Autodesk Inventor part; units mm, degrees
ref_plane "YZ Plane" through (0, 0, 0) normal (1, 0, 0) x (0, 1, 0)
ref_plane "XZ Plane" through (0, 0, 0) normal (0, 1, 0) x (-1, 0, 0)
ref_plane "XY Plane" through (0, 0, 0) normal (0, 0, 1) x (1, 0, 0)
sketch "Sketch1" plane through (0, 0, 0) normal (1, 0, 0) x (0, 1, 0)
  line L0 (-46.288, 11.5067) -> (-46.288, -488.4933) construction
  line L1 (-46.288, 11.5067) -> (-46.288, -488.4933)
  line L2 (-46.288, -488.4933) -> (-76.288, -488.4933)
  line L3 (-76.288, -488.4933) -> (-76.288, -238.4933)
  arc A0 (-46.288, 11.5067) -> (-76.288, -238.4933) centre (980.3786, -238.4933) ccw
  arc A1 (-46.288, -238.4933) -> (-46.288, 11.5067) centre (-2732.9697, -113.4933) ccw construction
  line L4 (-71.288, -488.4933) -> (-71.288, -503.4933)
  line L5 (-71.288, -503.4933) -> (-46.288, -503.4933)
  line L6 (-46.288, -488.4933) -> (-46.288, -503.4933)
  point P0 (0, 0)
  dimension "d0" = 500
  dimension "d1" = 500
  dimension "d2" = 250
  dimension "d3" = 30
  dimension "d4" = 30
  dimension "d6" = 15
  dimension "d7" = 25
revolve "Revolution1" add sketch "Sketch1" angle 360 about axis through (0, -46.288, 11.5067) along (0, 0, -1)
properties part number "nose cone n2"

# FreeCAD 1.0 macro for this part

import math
import FreeCAD as App
import Part
import Sketcher

V = App.Vector

doc = App.newDocument("Part")
body = doc.addObject("PartDesign::Body", "Body")

# Sketch on YZ plane
sketch1 = body.newObject("Sketcher::SketchObject", "Sketch")
sketch1.AttachmentSupport = (doc.getObject("YZ_Plane"), [""])
sketch1.MapMode = "FlatFace"
sketch1.addGeometry([
    Part.ArcOfCircle(Part.Circle(V(980, -238, 0), V(0, 0, 1), 1057), math.radians(166.31), math.radians(180)),  # 0
    Part.LineSegment(V(-76, -238, 0), V(-76, -488, 0)),  # 1
    Part.LineSegment(V(-76, -488, 0), V(-71, -488, 0)),  # 2
    Part.LineSegment(V(-71, -488, 0), V(-71, -503, 0)),  # 3
    Part.LineSegment(V(-71, -503, 0), V(-46, -503, 0)),  # 4
    Part.LineSegment(V(-46, -503, 0), V(-46, 12, 0)),  # 5
], False)
sketch1.addGeometry(Part.LineSegment(V(-46, 12, 0), V(-46, -503, 0)), True)  # axis
sketch1.addConstraint([
    Sketcher.Constraint("Tangent", 0, 2, 1, 1),
    Sketcher.Constraint("Coincident", 1, 2, 2, 1),
    Sketcher.Constraint("Coincident", 2, 2, 3, 1),
    Sketcher.Constraint("Coincident", 3, 2, 4, 1),
    Sketcher.Constraint("Coincident", 4, 2, 5, 1),
    Sketcher.Constraint("Coincident", 5, 2, 0, 1),
    Sketcher.Constraint("Vertical", 1),
    Sketcher.Constraint("Horizontal", 2),
    Sketcher.Constraint("Vertical", 3),
    Sketcher.Constraint("Horizontal", 4),
    Sketcher.Constraint("Vertical", 5),
    Sketcher.Constraint("Vertical", 6),
    Sketcher.Constraint("Coincident", 6, 1, 5, 2),
    Sketcher.Constraint("Horizontal", 3, 2, 6, 2),
    Sketcher.Constraint("DistanceX", 4, 1, 4, 2, 25.0),
    Sketcher.Constraint("DistanceY", 1, 2, 1, 1, 250.0),
    Sketcher.Constraint("DistanceY", 3, 2, 3, 1, 15.0),
    Sketcher.Constraint("DistanceX", 1, 2, 4, 2, 30.0),
    Sketcher.Constraint("DistanceY", 2, 2, 5, 2, 500.0),
    Sketcher.Constraint("DistanceX", 0, 2, -1, 1, 76.288),
    Sketcher.Constraint("DistanceY", 0, 3, -1, 1, 238.4933),
])
revolution = body.newObject("PartDesign::Revolution", "Revolution")
revolution.Profile = sketch1
revolution.ReferenceAxis = (sketch1, ["Axis0"])
revolution.Angle = 360

doc.recompute()
